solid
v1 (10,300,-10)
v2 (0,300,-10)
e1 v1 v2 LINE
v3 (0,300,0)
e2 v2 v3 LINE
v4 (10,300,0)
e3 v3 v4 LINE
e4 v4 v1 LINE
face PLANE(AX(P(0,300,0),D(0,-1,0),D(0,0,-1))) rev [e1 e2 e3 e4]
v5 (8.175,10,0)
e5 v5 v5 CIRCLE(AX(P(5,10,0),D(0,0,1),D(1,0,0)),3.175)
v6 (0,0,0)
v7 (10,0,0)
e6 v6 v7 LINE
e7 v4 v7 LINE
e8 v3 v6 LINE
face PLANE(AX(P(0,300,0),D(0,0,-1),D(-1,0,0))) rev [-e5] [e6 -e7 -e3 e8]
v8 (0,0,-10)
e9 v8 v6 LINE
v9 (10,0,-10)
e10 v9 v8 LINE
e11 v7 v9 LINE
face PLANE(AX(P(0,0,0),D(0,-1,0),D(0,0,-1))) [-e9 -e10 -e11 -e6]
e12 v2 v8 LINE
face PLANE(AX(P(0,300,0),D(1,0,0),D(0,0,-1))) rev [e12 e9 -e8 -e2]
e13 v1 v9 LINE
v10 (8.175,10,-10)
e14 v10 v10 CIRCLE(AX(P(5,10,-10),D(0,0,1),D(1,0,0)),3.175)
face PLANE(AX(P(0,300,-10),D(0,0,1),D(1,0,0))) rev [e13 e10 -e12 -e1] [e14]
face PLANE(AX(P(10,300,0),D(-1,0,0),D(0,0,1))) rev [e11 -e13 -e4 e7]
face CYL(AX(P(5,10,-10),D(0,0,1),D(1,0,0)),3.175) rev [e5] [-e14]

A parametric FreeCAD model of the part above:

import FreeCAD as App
import Part
import Sketcher
Q = App.Units.Quantity


def add_polygon(sketch, points):
    """Adds a closed chain of lines whose ends are joined by coincident constraints."""
    first, n = sketch.GeometryCount, len(points)
    for a, b in zip(points, points[1:] + points[:1]):
        sketch.addGeometry(Part.LineSegment(App.Vector(*a, 0), App.Vector(*b, 0)), False)
    for i in range(n):
        sketch.addConstraint(Sketcher.Constraint("Coincident", first + i, 2, first + (i + 1) % n, 1))

doc = App.newDocument("Part")
params = doc.addObject("Spreadsheet::Sheet", "Params")
for row, (alias, value) in enumerate([
    ("sketch1_width", "10 mm"),
    ("pad1_length", "300 mm"),
    ("sketch2_diameter", "6.35 mm"),
], start=1):
    params.set(f"A{row}", alias)
    params.set(f"B{row}", "=" + value)
    params.setAlias(f"B{row}", alias)

body = doc.addObject("PartDesign::Body", "Body")

sketch1 = body.newObject("Sketcher::SketchObject", "Sketch")
sketch1.AttachmentSupport = (doc.getObject("XZ_Plane"), [""])
sketch1.MapMode = "FlatFace"
add_polygon(sketch1, [(0, -10), (0, 0), (10, 0), (10, -10)])
sketch1.addConstraint(Sketcher.Constraint("Vertical", 0))
sketch1.addConstraint(Sketcher.Constraint("Horizontal", 1))
sketch1.addConstraint(Sketcher.Constraint("Vertical", 2))
sketch1.addConstraint(Sketcher.Constraint("Horizontal", 3))
sketch1.addConstraint(Sketcher.Constraint("Coincident", 0, 2, -1, 1))
sketch1.addConstraint(Sketcher.Constraint("Equal", 3, 0))
sketch1.addConstraint(Sketcher.Constraint("DistanceX", 1, 1, 1, 2, Q("10 mm")))
sketch1.setExpression("Constraints[10]", "Params.sketch1_width")
pad1 = body.newObject("PartDesign::Pad", "Pad")
pad1.Profile = sketch1
pad1.setExpression("Length", "Params.pad1_length")
pad1.Reversed = True

sketch2 = body.newObject("Sketcher::SketchObject", "Sketch001")
sketch2.AttachmentSupport = (doc.getObject("XY_Plane"), [""])
sketch2.MapMode = "FlatFace"
sketch2.addGeometry(Part.Circle(App.Vector(5, 10, 0), App.Vector(0, 0, 1), 3.2), False)
sketch2.addConstraint(Sketcher.Constraint("Diameter", 0, Q("6.35 mm")))
sketch2.addConstraint(Sketcher.Constraint("DistanceX", -1, 1, 0, 3, Q("5 mm")))
sketch2.addConstraint(Sketcher.Constraint("DistanceY", -1, 1, 0, 3, Q("10 mm")))
sketch2.setExpression("Constraints[0]", "Params.sketch2_diameter")
pocket1 = body.newObject("PartDesign::Pocket", "Pocket")
pocket1.Profile = sketch2
pocket1.Type = "ThroughAll"

doc.recompute()
